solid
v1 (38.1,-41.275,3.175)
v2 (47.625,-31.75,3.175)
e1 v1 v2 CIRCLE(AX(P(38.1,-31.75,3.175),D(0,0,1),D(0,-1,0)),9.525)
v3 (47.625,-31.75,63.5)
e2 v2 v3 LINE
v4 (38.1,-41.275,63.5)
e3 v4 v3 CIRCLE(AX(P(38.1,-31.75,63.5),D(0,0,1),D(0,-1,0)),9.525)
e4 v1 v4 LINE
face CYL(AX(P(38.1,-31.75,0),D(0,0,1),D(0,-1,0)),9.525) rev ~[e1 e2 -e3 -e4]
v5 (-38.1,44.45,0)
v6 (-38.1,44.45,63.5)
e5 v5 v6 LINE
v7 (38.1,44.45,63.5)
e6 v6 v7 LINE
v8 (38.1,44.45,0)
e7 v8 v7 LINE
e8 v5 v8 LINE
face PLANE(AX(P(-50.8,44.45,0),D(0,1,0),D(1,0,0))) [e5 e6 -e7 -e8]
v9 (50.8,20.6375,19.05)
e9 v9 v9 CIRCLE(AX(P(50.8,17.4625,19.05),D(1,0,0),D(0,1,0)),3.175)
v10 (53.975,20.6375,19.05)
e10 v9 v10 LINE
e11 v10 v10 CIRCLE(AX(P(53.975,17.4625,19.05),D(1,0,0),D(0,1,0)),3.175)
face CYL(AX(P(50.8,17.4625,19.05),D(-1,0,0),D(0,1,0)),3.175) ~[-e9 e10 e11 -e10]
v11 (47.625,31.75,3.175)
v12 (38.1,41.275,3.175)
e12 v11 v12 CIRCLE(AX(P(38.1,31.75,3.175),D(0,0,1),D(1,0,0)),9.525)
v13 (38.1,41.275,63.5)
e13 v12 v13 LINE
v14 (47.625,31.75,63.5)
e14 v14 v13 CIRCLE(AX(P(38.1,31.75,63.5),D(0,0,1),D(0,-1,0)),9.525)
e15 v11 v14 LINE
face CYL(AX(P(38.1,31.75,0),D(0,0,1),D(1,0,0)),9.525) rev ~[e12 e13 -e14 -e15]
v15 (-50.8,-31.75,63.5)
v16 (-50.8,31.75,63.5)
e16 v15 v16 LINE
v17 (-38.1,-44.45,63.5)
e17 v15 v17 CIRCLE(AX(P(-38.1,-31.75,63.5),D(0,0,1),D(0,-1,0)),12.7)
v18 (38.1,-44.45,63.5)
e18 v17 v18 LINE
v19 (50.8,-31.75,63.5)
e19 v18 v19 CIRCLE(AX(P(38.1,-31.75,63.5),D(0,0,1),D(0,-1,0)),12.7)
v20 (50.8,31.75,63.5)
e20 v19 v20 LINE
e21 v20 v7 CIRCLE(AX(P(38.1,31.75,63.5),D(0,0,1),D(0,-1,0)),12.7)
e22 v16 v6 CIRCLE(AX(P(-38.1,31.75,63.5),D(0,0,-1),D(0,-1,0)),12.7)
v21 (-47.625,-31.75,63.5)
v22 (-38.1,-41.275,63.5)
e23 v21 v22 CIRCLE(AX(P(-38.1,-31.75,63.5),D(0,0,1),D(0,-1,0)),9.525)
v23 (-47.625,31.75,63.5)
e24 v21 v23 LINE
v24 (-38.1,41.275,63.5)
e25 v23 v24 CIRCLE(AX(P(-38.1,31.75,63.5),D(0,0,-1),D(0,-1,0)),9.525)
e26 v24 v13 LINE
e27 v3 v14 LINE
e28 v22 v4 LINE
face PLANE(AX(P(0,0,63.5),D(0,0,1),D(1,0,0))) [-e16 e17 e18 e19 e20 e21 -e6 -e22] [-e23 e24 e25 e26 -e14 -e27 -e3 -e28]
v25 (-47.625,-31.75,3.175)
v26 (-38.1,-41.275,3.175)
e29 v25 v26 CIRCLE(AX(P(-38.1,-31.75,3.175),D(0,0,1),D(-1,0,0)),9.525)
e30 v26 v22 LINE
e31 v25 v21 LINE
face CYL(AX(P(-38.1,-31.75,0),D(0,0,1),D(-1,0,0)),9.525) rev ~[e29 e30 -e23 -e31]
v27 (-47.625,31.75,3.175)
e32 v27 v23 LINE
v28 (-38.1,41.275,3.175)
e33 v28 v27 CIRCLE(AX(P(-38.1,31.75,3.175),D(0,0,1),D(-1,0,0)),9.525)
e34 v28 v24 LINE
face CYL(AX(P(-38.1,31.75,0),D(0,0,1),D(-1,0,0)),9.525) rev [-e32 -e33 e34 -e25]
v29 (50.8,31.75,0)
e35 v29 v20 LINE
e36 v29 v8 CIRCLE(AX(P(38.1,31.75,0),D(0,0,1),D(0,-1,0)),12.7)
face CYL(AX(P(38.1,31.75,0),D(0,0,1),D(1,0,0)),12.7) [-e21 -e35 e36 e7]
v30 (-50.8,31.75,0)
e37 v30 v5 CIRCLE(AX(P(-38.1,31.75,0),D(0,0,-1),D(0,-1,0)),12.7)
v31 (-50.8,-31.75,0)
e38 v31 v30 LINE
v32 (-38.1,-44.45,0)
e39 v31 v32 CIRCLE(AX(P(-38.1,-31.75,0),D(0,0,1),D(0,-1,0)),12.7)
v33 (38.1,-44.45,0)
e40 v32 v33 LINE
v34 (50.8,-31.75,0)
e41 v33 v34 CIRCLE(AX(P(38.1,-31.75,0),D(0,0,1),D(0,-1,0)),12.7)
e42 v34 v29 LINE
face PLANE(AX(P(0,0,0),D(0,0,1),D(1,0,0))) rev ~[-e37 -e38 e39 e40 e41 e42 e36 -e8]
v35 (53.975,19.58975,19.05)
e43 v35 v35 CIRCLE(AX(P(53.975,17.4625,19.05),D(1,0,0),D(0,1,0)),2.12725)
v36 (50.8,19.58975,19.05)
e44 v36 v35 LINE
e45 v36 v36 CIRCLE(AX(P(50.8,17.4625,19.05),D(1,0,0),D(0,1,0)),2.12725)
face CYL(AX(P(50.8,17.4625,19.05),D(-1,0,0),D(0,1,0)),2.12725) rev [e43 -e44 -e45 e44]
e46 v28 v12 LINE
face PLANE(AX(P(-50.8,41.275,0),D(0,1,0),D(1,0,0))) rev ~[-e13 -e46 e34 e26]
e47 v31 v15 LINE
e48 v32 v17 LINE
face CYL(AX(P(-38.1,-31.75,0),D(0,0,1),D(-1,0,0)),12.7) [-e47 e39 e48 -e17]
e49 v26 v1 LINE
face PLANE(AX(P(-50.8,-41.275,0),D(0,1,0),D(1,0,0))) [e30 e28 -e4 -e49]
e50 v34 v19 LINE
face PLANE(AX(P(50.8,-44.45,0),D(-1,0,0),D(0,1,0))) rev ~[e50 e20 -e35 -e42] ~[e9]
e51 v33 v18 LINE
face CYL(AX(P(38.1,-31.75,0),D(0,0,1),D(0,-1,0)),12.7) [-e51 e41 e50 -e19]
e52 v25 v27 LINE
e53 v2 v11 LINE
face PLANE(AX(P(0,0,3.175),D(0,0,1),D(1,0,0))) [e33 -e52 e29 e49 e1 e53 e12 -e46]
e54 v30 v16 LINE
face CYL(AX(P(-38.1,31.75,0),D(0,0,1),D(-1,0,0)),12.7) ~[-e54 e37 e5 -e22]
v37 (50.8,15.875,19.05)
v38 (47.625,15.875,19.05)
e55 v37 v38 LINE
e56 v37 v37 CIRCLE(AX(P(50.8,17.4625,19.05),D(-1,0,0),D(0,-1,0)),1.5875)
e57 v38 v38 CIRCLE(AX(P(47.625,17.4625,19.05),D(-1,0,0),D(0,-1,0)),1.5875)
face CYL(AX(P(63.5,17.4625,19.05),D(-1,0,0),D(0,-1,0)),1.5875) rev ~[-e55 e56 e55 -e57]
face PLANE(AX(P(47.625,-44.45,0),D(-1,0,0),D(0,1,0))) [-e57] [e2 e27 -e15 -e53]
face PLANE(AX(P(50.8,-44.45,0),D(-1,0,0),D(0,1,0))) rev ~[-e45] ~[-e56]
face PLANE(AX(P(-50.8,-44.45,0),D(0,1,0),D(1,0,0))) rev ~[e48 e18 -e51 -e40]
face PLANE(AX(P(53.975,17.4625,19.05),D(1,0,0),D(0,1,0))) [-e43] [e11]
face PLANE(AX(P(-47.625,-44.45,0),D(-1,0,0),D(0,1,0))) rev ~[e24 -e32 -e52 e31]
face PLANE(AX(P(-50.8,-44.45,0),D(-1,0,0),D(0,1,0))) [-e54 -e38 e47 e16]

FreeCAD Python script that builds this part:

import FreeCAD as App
import Part
import Sketcher

V = App.Vector
Q = App.Units.Quantity


def edges_at(feature, points):
    """Names of the edges that pass closest to the given points."""
    edges = feature.Shape.Edges
    near = lambda p: min(range(len(edges)), key=lambda i: edges[i].distToShape(Part.Vertex(*p))[0])
    return sorted({f"Edge{near(p) + 1}" for p in points})


def faces_at(feature, points):
    """Names of the faces that lie closest to the given points."""
    faces = feature.Shape.Faces
    near = lambda p: min(range(len(faces)), key=lambda i: faces[i].distToShape(Part.Vertex(*p))[0])
    return sorted({f"Face{near(p) + 1}" for p in points})


def add_polygon(sketch, points):
    """Adds a closed chain of lines whose ends are joined by coincident constraints."""
    first, n = sketch.GeometryCount, len(points)
    for a, b in zip(points, points[1:] + points[:1]):
        sketch.addGeometry(Part.LineSegment(App.Vector(*a, 0), App.Vector(*b, 0)), False)
    for i in range(n):
        sketch.addConstraint(Sketcher.Constraint("Coincident", first + i, 2, first + (i + 1) % n, 1))

doc = App.newDocument("Part")
body = doc.addObject("PartDesign::Body", "Body")

# Sketch on XY plane
sketch1 = body.newObject("Sketcher::SketchObject", "Sketch")
sketch1.AttachmentSupport = (doc.getObject("XY_Plane"), [""])
sketch1.MapMode = "FlatFace"
add_polygon(sketch1, [(-51, 44), (-51, -44), (51, -44), (51, 44)])  # lines 0-3
sketch1.addConstraint(Sketcher.Constraint("Vertical", 0))
sketch1.addConstraint(Sketcher.Constraint("Horizontal", 1))
sketch1.addConstraint(Sketcher.Constraint("Vertical", 2))
sketch1.addConstraint(Sketcher.Constraint("Horizontal", 3))
sketch1.addConstraint(Sketcher.Constraint("Symmetric", 0, 2, 2, 2, -1, 1))
sketch1.addConstraint(Sketcher.Constraint("DistanceX", 1, 1, 1, 2, Q("4 in")))
sketch1.addConstraint(Sketcher.Constraint("DistanceY", 0, 2, 0, 1, Q("3.5 in")))
pad1 = body.newObject("PartDesign::Pad", "Pad")
pad1.Profile = sketch1
pad1.Length = Q("2.5 in")
doc.recompute()

fillet = body.newObject("PartDesign::Fillet", "Fillet")
fillet.Base = (pad1, edges_at(pad1, [
    (50.8, -44.45, 31.75),
    (50.8, 44.45, 31.75),
    (-50.8, -44.45, 31.75),
    (-50.8, 44.45, 31.75),
]))
fillet.Radius = Q("0.5 in")
doc.recompute()

thickness = body.newObject("PartDesign::Thickness", "Thickness")
thickness.Base = (fillet, faces_at(fillet, [(0, 0, 63.5)]))
thickness.Value = Q("0.125 in")
thickness.Reversed = True
thickness.Join = "Arc"

# Sketch on YZ plane
sketch2 = body.newObject("Sketcher::SketchObject", "Sketch001")
sketch2.AttachmentSupport = (doc.getObject("YZ_Plane"), [""])
sketch2.MapMode = "FlatFace"
sketch2.AttachmentOffset = App.Placement(V(0, 0, 2 * 25.4), App.Rotation())
sketch2.addGeometry(Part.Circle(V(17.5, 19.1, 0), V(0, 0, 1), 1.6), False)
sketch2.addConstraint(Sketcher.Constraint("Diameter", 0, Q("0.125 in")))
sketch2.addConstraint(Sketcher.Constraint("DistanceY", -1, 1, 0, 3, Q("0.75 in")))
sketch2.addConstraint(Sketcher.Constraint("DistanceX", -1, 1, 0, 3, Q("0.6875 in")))
doc.recompute()
hole = body.newObject("PartDesign::Hole", "Hole")
hole.Profile = sketch2
hole.ThreadType = "None"
hole.Diameter = Q("0.125 in")
hole.DepthType = "Dimension"
hole.Depth = Q("0.5 in")
hole.DrillPoint = "Flat"

# Sketch on YZ plane
sketch3 = body.newObject("Sketcher::SketchObject", "Sketch002")
sketch3.AttachmentSupport = (doc.getObject("YZ_Plane"), [""])
sketch3.MapMode = "FlatFace"
sketch3.AttachmentOffset = App.Placement(V(0, 0, 2 * 25.4), App.Rotation())
sketch3.addGeometry(Part.Circle(V(17.5, 19.1, 0), V(0, 0, 1), 3.2), False)
sketch3.addGeometry(Part.Circle(V(17.5, 19.1, 0), V(0, 0, 1), 2.1), False)
sketch3.addConstraint(Sketcher.Constraint("Coincident", 1, 3, 0, 3))
sketch3.addConstraint(Sketcher.Constraint("Diameter", 0, Q("0.25 in")))
sketch3.addConstraint(Sketcher.Constraint("Diameter", 1, Q("0.1675 in")))
sketch3.addConstraint(Sketcher.Constraint("DistanceY", -1, 1, 0, 3, Q("0.75 in")))
sketch3.addConstraint(Sketcher.Constraint("DistanceX", -1, 1, 0, 3, Q("0.6875 in")))
pad2 = body.newObject("PartDesign::Pad", "Pad001")
pad2.Profile = sketch3
pad2.Length = Q("0.125 in")

doc.recompute()
